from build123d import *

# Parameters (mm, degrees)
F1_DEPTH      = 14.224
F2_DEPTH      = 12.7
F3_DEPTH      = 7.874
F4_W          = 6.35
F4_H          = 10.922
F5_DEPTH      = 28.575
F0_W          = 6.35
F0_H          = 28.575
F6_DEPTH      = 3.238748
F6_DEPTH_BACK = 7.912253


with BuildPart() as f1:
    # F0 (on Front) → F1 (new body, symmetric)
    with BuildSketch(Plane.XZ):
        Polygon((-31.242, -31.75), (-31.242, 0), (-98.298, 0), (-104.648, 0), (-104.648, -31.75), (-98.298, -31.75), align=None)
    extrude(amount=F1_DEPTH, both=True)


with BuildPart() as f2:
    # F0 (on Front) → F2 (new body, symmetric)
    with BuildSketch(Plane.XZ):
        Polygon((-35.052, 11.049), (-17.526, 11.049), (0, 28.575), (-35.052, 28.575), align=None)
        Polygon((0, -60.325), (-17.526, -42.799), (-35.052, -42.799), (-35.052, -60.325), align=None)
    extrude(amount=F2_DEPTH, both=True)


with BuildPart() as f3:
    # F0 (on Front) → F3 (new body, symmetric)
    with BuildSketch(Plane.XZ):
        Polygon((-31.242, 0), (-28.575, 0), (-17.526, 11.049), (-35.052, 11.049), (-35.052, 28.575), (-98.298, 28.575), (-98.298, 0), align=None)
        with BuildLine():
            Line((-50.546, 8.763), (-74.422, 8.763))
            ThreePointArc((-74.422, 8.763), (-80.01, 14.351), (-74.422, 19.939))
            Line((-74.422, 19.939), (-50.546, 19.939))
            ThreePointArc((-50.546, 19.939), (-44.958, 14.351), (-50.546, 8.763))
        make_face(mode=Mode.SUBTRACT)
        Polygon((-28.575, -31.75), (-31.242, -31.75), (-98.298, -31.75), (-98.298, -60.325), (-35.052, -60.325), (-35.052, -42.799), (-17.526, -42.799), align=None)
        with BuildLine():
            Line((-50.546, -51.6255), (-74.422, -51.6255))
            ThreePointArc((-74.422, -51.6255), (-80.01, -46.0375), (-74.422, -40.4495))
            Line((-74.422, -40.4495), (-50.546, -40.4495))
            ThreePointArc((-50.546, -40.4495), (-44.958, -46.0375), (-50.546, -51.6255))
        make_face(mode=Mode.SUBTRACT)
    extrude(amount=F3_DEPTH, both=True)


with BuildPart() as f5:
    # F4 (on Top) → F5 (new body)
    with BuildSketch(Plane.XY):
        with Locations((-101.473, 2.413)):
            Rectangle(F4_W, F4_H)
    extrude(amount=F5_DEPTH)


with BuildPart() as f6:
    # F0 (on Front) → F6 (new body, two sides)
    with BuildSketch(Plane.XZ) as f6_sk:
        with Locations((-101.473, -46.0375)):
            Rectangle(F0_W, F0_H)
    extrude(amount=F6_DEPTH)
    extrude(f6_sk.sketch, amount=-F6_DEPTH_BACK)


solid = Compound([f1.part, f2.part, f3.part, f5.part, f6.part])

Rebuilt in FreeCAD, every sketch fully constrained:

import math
import FreeCAD as App
import Part
import Sketcher
Q = App.Units.Quantity


def add_polygon(sketch, points):
    """Adds a closed chain of lines whose ends are joined by coincident constraints."""
    first, n = sketch.GeometryCount, len(points)
    for a, b in zip(points, points[1:] + points[:1]):
        sketch.addGeometry(Part.LineSegment(App.Vector(*a, 0), App.Vector(*b, 0)), False)
    for i in range(n):
        sketch.addConstraint(Sketcher.Constraint("Coincident", first + i, 2, first + (i + 1) % n, 1))

doc = App.newDocument("Part")
body = doc.addObject("PartDesign::Body", "Body")

# Sketch on XZ plane
sketch1 = body.newObject("Sketcher::SketchObject", "Sketch")
sketch1.AttachmentSupport = (doc.getObject("XZ_Plane"), [""])
sketch1.MapMode = "FlatFace"
add_polygon(sketch1, [(-31, -32), (-31, 0), (-105, 0), (-105, -32)])  # lines 0-3
sketch1.addConstraint(Sketcher.Constraint("Vertical", 0))
sketch1.addConstraint(Sketcher.Constraint("Horizontal", 1))
sketch1.addConstraint(Sketcher.Constraint("Vertical", 2))
sketch1.addConstraint(Sketcher.Constraint("Horizontal", 3))
sketch1.addConstraint(Sketcher.Constraint("PointOnObject", 0, 2, -1))
sketch1.addConstraint(Sketcher.Constraint("DistanceX", 1, 2, 1, 1, Q("2.89 in")))
sketch1.addConstraint(Sketcher.Constraint("DistanceY", 0, 1, 0, 2, Q("1.25 in")))
sketch1.addConstraint(Sketcher.Constraint("DistanceX", 0, 2, -1, 1, Q("1.23 in")))
pad1 = body.newObject("PartDesign::Pad", "Pad")
pad1.Profile = sketch1
pad1.Length = Q("1.12 in")
pad1.Midplane = True
body2 = doc.addObject("PartDesign::Body", "Body001")
body2.AllowCompound = True

# Sketch on XZ plane
sketch2 = body2.newObject("Sketcher::SketchObject", "Sketch001")
sketch2.AttachmentSupport = (doc.getObject("XZ_Plane001"), [""])
sketch2.MapMode = "FlatFace"
add_polygon(sketch2, [(-35, 11), (-18, 11), (0, 29), (-35, 29)])  # lines 0-3
add_polygon(sketch2, [(0, -60), (-18, -43), (-35, -43), (-35, -60)])  # lines 4-7
sketch2.addConstraint(Sketcher.Constraint("Horizontal", 0))
sketch2.addConstraint(Sketcher.Constraint("Horizontal", 2))
sketch2.addConstraint(Sketcher.Constraint("Vertical", 3))
sketch2.addConstraint(Sketcher.Constraint("Horizontal", 5))
sketch2.addConstraint(Sketcher.Constraint("Vertical", 6))
sketch2.addConstraint(Sketcher.Constraint("Horizontal", 7))
sketch2.addConstraint(Sketcher.Constraint("PointOnObject", 1, 2, -2))
sketch2.addConstraint(Sketcher.Constraint("PointOnObject", 7, 2, -2))
sketch2.addConstraint(Sketcher.Constraint("Perpendicular", 1, 4))
sketch2.addConstraint(Sketcher.Constraint("Vertical", 0, 2, 4, 2))
sketch2.addConstraint(Sketcher.Constraint("Vertical", 3, 2, 5, 2))
sketch2.addConstraint(Sketcher.Constraint("Equal", 5, 3))
sketch2.addConstraint(Sketcher.Constraint("Equal", 3, 6))
sketch2.addConstraint(Sketcher.Constraint("DistanceX", 0, 1, 0, 2, Q("0.69 in")))
sketch2.addConstraint(Sketcher.Constraint("DistanceY", 6, 2, 2, 2, Q("3.5 in")))
sketch2.addConstraint(Sketcher.Constraint("DistanceY", -1, 1, 0, 2, Q("0.435 in")))
pad2 = body2.newObject("PartDesign::Pad", "Pad001")
pad2.Profile = sketch2
pad2.Length = Q("1 in")
pad2.Midplane = True
body3 = doc.addObject("PartDesign::Body", "Body002")
body3.AllowCompound = True

# Sketch on XZ plane
sketch3 = body3.newObject("Sketcher::SketchObject", "Sketch002")
sketch3.AttachmentSupport = (doc.getObject("XZ_Plane002"), [""])
sketch3.MapMode = "FlatFace"
add_polygon(sketch3, [(-29, 0), (-18, 11), (-35, 11), (-35, 29), (-98, 29), (-98, 0)])  # lines 0-5
sketch3.addGeometry(Part.ArcOfCircle(Part.Circle(App.Vector(-51, 14, 0), App.Vector(0, 0, 1), 6), math.radians(-90), math.radians(90)), False)  # 6
sketch3.addGeometry(Part.LineSegment(App.Vector(-51, 9, 0), App.Vector(-74, 9, 0)), False)  # 7
sketch3.addGeometry(Part.ArcOfCircle(Part.Circle(App.Vector(-74, 14, 0), App.Vector(0, 0, 1), 6), math.radians(90), math.radians(270)), False)  # 8
sketch3.addGeometry(Part.LineSegment(App.Vector(-74, 20, 0), App.Vector(-51, 20, 0)), False)  # 9
add_polygon(sketch3, [(-29, -32), (-98, -32), (-98, -60), (-35, -60), (-35, -43), (-18, -43)])  # lines 10-15
sketch3.addGeometry(Part.ArcOfCircle(Part.Circle(App.Vector(-51, -46, 0), App.Vector(0, 0, 1), 6), math.radians(-90), math.radians(90)), False)  # 16
sketch3.addGeometry(Part.LineSegment(App.Vector(-51, -52, 0), App.Vector(-74, -52, 0)), False)  # 17
sketch3.addGeometry(Part.ArcOfCircle(Part.Circle(App.Vector(-74, -46, 0), App.Vector(0, 0, 1), 6), math.radians(90), math.radians(270)), False)  # 18
sketch3.addGeometry(Part.LineSegment(App.Vector(-74, -40, 0), App.Vector(-51, -40, 0)), False)  # 19
sketch3.addConstraint(Sketcher.Constraint("Tangent", 6, 1, 7, 1))
sketch3.addConstraint(Sketcher.Constraint("Tangent", 7, 2, 8, 2))
sketch3.addConstraint(Sketcher.Constraint("Tangent", 8, 1, 9, 1))
sketch3.addConstraint(Sketcher.Constraint("Tangent", 9, 2, 6, 2))
sketch3.addConstraint(Sketcher.Constraint("Tangent", 16, 1, 17, 1))
sketch3.addConstraint(Sketcher.Constraint("Tangent", 17, 2, 18, 2))
sketch3.addConstraint(Sketcher.Constraint("Tangent", 18, 1, 19, 1))
sketch3.addConstraint(Sketcher.Constraint("Tangent", 19, 2, 16, 2))
sketch3.addConstraint(Sketcher.Constraint("Horizontal", 1))
sketch3.addConstraint(Sketcher.Constraint("Vertical", 2))
sketch3.addConstraint(Sketcher.Constraint("Horizontal", 3))
sketch3.addConstraint(Sketcher.Constraint("Vertical", 4))
sketch3.addConstraint(Sketcher.Constraint("Horizontal", 5))
sketch3.addConstraint(Sketcher.Constraint("Horizontal", 7))
sketch3.addConstraint(Sketcher.Constraint("Horizontal", 9))
sketch3.addConstraint(Sketcher.Constraint("Horizontal", 10))
sketch3.addConstraint(Sketcher.Constraint("Vertical", 11))
sketch3.addConstraint(Sketcher.Constraint("Horizontal", 12))
sketch3.addConstraint(Sketcher.Constraint("Vertical", 13))
sketch3.addConstraint(Sketcher.Constraint("Horizontal", 14))
sketch3.addConstraint(Sketcher.Constraint("Horizontal", 17))
sketch3.addConstraint(Sketcher.Constraint("Horizontal", 19))
sketch3.addConstraint(Sketcher.Constraint("Equal", 8, 16))
sketch3.addConstraint(Sketcher.Constraint("PointOnObject", 4, 2, -1))
sketch3.addConstraint(Sketcher.Constraint("Perpendicular", 0, 15))
sketch3.addConstraint(Sketcher.Constraint("Vertical", 6, 3, 16, 3))
sketch3.addConstraint(Sketcher.Constraint("Vertical", 8, 3, 18, 3))
sketch3.addConstraint(Sketcher.Constraint("Vertical", 4, 2, 10, 2))
sketch3.addConstraint(Sketcher.Constraint("Vertical", 2, 2, 12, 2))
sketch3.addConstraint(Sketcher.Constraint("Vertical", 0, 2, 14, 2))
sketch3.addConstraint(Sketcher.Constraint("Vertical", 5, 2, 15, 2))
sketch3.addConstraint(Sketcher.Constraint("Equal", 14, 2))
sketch3.addConstraint(Sketcher.Constraint("Equal", 4, 11))
sketch3.addConstraint(Sketcher.Constraint("Equal", 2, 13))
sketch3.addConstraint(Sketcher.Constraint("Radius", 6, Q("0.22 in")))
sketch3.addConstraint(Sketcher.Constraint("DistanceX", 1, 2, 1, 1, Q("0.69 in")))
sketch3.addConstraint(Sketcher.Constraint("DistanceX", 3, 2, 3, 1, Q("2.49 in")))
sketch3.addConstraint(Sketcher.Constraint("DistanceX", 7, 2, 7, 1, Q("0.94 in")))
sketch3.addConstraint(Sketcher.Constraint("DistanceX", 6, 3, 0, 2, Q("1.3 in")))
sketch3.addConstraint(Sketcher.Constraint("DistanceX", 5, 1, 5, 2, Q("2.745 in")))
sketch3.addConstraint(Sketcher.Constraint("DistanceX", 6, 3, -1, 1, Q("1.99 in")))
sketch3.addConstraint(Sketcher.Constraint("DistanceY", 10, 2, -1, 1, Q("1.25 in")))
sketch3.addConstraint(Sketcher.Constraint("DistanceY", 0, 2, 6, 3, Q("0.13 in")))
sketch3.addConstraint(Sketcher.Constraint("DistanceY", 16, 3, -1, 1, Q("1.8125 in")))
pad3 = body3.newObject("PartDesign::Pad", "Pad002")
pad3.Profile = sketch3
pad3.Length = Q("0.62 in")
pad3.Midplane = True
body4 = doc.addObject("PartDesign::Body", "Body003")

# Sketch on XY plane
sketch4 = body4.newObject("Sketcher::SketchObject", "Sketch003")
sketch4.AttachmentSupport = (doc.getObject("XY_Plane003"), [""])
sketch4.MapMode = "FlatFace"
add_polygon(sketch4, [(-105, 8), (-105, -3), (-98, -3), (-98, 8)])  # lines 0-3
sketch4.addConstraint(Sketcher.Constraint("Vertical", 0))
sketch4.addConstraint(Sketcher.Constraint("Horizontal", 1))
sketch4.addConstraint(Sketcher.Constraint("Vertical", 2))
sketch4.addConstraint(Sketcher.Constraint("Horizontal", 3))
sketch4.addConstraint(Sketcher.Constraint("DistanceX", 1, 1, 1, 2, Q("0.25 in")))
sketch4.addConstraint(Sketcher.Constraint("DistanceY", 0, 2, 0, 1, Q("0.43 in")))
sketch4.addConstraint(Sketcher.Constraint("DistanceX", 0, 2, -1, 1, Q("4.12 in")))
sketch4.addConstraint(Sketcher.Constraint("DistanceY", 0, 2, -1, 1, Q("0.12 in")))
pad4 = body4.newObject("PartDesign::Pad", "Pad003")
pad4.Profile = sketch4
pad4.Length = Q("1.125 in")
body5 = doc.addObject("PartDesign::Body", "Body004")

# Sketch on XZ plane
sketch5 = body5.newObject("Sketcher::SketchObject", "Sketch004")
sketch5.AttachmentSupport = (doc.getObject("XZ_Plane004"), [""])
sketch5.MapMode = "FlatFace"
add_polygon(sketch5, [(-105, -32), (-105, -60), (-98, -60), (-98, -32)])  # lines 0-3
sketch5.addConstraint(Sketcher.Constraint("Vertical", 0))
sketch5.addConstraint(Sketcher.Constraint("Horizontal", 1))
sketch5.addConstraint(Sketcher.Constraint("Vertical", 2))
sketch5.addConstraint(Sketcher.Constraint("Horizontal", 3))
sketch5.addConstraint(Sketcher.Constraint("DistanceX", 1, 1, 1, 2, Q("0.25 in")))
sketch5.addConstraint(Sketcher.Constraint("DistanceY", 0, 2, 0, 1, Q("1.125 in")))
sketch5.addConstraint(Sketcher.Constraint("DistanceX", 0, 2, -1, 1, Q("4.12 in")))
sketch5.addConstraint(Sketcher.Constraint("DistanceY", 2, 2, -1, 1, Q("1.25 in")))
pad5 = body5.newObject("PartDesign::Pad", "Pad004")
pad5.Profile = sketch5
pad5.Type = "TwoLengths"
pad5.Length = 3.238748
pad5.Length2 = 7.912253

doc.recompute()
